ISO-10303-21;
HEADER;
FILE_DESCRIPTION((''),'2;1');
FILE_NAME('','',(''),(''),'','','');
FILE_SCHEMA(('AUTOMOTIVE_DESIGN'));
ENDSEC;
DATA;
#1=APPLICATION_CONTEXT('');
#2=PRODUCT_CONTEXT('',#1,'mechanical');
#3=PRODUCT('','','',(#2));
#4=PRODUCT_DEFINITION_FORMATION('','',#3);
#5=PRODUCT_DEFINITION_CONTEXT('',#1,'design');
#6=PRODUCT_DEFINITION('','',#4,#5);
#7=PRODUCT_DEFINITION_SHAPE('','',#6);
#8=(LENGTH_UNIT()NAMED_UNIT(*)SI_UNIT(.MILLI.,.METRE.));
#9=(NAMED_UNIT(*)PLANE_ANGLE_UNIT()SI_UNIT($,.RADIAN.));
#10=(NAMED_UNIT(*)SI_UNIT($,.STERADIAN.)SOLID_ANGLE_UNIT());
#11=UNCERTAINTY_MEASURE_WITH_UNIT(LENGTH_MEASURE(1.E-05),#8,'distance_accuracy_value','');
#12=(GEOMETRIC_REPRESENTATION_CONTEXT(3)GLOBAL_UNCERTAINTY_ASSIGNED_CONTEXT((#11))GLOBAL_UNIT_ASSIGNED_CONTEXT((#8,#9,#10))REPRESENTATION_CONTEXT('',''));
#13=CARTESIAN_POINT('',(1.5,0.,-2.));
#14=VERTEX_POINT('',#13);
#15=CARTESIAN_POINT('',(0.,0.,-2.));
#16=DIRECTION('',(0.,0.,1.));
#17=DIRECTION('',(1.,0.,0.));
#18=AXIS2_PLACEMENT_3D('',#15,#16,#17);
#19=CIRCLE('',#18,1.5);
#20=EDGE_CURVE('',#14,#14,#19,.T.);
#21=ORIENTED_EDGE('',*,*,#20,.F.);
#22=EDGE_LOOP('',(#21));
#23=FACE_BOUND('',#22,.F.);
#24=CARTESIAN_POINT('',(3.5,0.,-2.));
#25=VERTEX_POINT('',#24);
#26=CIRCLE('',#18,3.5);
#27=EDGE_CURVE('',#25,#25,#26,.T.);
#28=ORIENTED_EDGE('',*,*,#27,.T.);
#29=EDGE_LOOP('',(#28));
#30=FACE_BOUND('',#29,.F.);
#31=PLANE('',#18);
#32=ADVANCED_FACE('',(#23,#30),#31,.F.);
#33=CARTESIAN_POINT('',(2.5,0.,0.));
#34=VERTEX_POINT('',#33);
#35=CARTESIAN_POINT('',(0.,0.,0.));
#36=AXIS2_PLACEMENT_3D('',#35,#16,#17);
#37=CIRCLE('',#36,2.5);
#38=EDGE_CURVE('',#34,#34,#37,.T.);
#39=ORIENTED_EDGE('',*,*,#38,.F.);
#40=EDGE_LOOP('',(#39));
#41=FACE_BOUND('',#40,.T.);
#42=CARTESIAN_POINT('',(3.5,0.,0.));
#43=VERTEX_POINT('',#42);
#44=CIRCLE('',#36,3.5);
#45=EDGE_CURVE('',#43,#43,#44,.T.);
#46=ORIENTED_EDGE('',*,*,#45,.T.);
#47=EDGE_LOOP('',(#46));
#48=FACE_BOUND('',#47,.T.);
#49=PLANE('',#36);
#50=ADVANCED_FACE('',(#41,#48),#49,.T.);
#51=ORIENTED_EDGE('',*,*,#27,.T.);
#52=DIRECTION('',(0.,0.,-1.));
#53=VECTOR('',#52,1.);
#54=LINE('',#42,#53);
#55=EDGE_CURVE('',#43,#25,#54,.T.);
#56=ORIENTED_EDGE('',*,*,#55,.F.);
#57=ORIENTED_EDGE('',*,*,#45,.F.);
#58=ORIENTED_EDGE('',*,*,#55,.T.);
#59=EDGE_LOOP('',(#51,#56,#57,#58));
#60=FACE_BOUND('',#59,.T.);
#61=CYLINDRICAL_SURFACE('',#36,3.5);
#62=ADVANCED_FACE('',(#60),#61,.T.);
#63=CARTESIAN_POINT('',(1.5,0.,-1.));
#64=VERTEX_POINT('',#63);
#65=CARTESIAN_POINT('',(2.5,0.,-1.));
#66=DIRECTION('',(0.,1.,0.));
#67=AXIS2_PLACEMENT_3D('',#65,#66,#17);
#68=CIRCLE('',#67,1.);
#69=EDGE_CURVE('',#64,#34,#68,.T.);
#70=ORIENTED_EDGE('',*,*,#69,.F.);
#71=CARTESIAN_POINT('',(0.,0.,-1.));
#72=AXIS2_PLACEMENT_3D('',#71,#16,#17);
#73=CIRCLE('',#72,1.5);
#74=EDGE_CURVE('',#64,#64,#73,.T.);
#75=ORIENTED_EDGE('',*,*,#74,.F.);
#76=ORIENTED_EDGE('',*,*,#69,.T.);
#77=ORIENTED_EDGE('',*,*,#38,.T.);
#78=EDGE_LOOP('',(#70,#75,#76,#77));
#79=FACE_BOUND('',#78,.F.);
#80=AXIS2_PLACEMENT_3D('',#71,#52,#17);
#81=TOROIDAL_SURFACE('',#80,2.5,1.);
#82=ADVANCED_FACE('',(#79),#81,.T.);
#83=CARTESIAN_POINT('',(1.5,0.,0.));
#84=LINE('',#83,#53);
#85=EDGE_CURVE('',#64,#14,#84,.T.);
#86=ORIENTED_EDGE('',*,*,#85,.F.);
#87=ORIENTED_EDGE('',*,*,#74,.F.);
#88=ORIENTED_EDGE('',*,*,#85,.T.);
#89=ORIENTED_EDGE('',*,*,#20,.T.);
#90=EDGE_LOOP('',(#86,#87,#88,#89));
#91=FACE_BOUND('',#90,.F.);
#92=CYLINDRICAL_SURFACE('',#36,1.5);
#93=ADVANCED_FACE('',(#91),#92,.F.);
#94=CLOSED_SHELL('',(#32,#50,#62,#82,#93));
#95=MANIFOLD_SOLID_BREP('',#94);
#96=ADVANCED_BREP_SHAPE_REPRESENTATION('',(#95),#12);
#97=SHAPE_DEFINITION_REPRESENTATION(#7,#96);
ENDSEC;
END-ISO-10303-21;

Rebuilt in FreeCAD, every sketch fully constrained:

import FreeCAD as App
import Part
import Sketcher
from FreeCAD import Vector


def edges_at(feature, points):
    """Names of the edges that pass closest to the given points."""
    edges = feature.Shape.Edges
    near = lambda p: min(range(len(edges)), key=lambda i: edges[i].distToShape(Part.Vertex(*p))[0])
    return sorted({f"Edge{near(p) + 1}" for p in points})

doc = App.newDocument("Part")
body = doc.addObject("PartDesign::Body", "Body")

sketch1 = body.newObject("Sketcher::SketchObject", "Sketch")
sketch1.AttachmentSupport = (doc.getObject("XY_Plane"), [""])
sketch1.MapMode = "FlatFace"
sketch1.addGeometry(Part.Circle(Vector(0, 0, 0), Vector(0, 0, 1), 3.5), False)
sketch1.addGeometry(Part.Circle(Vector(0, 0, 0), Vector(0, 0, 1), 1.5), False)
sketch1.addConstraint(Sketcher.Constraint("Coincident", 0, 3, -1, 1))
sketch1.addConstraint(Sketcher.Constraint("Coincident", 1, 3, -1, 1))
sketch1.addConstraint(Sketcher.Constraint("Diameter", 0, 7.0))
sketch1.addConstraint(Sketcher.Constraint("Diameter", 1, 3.0))
pad1 = body.newObject("PartDesign::Pad", "Pad")
pad1.Profile = sketch1
pad1.Length = 2
pad1.Reversed = True
doc.recompute()

fillet = body.newObject("PartDesign::Fillet", "Fillet")
fillet.Base = (pad1, edges_at(pad1, [(-1.399, 0.542, 0)]))
fillet.Radius = 1

doc.recompute()
